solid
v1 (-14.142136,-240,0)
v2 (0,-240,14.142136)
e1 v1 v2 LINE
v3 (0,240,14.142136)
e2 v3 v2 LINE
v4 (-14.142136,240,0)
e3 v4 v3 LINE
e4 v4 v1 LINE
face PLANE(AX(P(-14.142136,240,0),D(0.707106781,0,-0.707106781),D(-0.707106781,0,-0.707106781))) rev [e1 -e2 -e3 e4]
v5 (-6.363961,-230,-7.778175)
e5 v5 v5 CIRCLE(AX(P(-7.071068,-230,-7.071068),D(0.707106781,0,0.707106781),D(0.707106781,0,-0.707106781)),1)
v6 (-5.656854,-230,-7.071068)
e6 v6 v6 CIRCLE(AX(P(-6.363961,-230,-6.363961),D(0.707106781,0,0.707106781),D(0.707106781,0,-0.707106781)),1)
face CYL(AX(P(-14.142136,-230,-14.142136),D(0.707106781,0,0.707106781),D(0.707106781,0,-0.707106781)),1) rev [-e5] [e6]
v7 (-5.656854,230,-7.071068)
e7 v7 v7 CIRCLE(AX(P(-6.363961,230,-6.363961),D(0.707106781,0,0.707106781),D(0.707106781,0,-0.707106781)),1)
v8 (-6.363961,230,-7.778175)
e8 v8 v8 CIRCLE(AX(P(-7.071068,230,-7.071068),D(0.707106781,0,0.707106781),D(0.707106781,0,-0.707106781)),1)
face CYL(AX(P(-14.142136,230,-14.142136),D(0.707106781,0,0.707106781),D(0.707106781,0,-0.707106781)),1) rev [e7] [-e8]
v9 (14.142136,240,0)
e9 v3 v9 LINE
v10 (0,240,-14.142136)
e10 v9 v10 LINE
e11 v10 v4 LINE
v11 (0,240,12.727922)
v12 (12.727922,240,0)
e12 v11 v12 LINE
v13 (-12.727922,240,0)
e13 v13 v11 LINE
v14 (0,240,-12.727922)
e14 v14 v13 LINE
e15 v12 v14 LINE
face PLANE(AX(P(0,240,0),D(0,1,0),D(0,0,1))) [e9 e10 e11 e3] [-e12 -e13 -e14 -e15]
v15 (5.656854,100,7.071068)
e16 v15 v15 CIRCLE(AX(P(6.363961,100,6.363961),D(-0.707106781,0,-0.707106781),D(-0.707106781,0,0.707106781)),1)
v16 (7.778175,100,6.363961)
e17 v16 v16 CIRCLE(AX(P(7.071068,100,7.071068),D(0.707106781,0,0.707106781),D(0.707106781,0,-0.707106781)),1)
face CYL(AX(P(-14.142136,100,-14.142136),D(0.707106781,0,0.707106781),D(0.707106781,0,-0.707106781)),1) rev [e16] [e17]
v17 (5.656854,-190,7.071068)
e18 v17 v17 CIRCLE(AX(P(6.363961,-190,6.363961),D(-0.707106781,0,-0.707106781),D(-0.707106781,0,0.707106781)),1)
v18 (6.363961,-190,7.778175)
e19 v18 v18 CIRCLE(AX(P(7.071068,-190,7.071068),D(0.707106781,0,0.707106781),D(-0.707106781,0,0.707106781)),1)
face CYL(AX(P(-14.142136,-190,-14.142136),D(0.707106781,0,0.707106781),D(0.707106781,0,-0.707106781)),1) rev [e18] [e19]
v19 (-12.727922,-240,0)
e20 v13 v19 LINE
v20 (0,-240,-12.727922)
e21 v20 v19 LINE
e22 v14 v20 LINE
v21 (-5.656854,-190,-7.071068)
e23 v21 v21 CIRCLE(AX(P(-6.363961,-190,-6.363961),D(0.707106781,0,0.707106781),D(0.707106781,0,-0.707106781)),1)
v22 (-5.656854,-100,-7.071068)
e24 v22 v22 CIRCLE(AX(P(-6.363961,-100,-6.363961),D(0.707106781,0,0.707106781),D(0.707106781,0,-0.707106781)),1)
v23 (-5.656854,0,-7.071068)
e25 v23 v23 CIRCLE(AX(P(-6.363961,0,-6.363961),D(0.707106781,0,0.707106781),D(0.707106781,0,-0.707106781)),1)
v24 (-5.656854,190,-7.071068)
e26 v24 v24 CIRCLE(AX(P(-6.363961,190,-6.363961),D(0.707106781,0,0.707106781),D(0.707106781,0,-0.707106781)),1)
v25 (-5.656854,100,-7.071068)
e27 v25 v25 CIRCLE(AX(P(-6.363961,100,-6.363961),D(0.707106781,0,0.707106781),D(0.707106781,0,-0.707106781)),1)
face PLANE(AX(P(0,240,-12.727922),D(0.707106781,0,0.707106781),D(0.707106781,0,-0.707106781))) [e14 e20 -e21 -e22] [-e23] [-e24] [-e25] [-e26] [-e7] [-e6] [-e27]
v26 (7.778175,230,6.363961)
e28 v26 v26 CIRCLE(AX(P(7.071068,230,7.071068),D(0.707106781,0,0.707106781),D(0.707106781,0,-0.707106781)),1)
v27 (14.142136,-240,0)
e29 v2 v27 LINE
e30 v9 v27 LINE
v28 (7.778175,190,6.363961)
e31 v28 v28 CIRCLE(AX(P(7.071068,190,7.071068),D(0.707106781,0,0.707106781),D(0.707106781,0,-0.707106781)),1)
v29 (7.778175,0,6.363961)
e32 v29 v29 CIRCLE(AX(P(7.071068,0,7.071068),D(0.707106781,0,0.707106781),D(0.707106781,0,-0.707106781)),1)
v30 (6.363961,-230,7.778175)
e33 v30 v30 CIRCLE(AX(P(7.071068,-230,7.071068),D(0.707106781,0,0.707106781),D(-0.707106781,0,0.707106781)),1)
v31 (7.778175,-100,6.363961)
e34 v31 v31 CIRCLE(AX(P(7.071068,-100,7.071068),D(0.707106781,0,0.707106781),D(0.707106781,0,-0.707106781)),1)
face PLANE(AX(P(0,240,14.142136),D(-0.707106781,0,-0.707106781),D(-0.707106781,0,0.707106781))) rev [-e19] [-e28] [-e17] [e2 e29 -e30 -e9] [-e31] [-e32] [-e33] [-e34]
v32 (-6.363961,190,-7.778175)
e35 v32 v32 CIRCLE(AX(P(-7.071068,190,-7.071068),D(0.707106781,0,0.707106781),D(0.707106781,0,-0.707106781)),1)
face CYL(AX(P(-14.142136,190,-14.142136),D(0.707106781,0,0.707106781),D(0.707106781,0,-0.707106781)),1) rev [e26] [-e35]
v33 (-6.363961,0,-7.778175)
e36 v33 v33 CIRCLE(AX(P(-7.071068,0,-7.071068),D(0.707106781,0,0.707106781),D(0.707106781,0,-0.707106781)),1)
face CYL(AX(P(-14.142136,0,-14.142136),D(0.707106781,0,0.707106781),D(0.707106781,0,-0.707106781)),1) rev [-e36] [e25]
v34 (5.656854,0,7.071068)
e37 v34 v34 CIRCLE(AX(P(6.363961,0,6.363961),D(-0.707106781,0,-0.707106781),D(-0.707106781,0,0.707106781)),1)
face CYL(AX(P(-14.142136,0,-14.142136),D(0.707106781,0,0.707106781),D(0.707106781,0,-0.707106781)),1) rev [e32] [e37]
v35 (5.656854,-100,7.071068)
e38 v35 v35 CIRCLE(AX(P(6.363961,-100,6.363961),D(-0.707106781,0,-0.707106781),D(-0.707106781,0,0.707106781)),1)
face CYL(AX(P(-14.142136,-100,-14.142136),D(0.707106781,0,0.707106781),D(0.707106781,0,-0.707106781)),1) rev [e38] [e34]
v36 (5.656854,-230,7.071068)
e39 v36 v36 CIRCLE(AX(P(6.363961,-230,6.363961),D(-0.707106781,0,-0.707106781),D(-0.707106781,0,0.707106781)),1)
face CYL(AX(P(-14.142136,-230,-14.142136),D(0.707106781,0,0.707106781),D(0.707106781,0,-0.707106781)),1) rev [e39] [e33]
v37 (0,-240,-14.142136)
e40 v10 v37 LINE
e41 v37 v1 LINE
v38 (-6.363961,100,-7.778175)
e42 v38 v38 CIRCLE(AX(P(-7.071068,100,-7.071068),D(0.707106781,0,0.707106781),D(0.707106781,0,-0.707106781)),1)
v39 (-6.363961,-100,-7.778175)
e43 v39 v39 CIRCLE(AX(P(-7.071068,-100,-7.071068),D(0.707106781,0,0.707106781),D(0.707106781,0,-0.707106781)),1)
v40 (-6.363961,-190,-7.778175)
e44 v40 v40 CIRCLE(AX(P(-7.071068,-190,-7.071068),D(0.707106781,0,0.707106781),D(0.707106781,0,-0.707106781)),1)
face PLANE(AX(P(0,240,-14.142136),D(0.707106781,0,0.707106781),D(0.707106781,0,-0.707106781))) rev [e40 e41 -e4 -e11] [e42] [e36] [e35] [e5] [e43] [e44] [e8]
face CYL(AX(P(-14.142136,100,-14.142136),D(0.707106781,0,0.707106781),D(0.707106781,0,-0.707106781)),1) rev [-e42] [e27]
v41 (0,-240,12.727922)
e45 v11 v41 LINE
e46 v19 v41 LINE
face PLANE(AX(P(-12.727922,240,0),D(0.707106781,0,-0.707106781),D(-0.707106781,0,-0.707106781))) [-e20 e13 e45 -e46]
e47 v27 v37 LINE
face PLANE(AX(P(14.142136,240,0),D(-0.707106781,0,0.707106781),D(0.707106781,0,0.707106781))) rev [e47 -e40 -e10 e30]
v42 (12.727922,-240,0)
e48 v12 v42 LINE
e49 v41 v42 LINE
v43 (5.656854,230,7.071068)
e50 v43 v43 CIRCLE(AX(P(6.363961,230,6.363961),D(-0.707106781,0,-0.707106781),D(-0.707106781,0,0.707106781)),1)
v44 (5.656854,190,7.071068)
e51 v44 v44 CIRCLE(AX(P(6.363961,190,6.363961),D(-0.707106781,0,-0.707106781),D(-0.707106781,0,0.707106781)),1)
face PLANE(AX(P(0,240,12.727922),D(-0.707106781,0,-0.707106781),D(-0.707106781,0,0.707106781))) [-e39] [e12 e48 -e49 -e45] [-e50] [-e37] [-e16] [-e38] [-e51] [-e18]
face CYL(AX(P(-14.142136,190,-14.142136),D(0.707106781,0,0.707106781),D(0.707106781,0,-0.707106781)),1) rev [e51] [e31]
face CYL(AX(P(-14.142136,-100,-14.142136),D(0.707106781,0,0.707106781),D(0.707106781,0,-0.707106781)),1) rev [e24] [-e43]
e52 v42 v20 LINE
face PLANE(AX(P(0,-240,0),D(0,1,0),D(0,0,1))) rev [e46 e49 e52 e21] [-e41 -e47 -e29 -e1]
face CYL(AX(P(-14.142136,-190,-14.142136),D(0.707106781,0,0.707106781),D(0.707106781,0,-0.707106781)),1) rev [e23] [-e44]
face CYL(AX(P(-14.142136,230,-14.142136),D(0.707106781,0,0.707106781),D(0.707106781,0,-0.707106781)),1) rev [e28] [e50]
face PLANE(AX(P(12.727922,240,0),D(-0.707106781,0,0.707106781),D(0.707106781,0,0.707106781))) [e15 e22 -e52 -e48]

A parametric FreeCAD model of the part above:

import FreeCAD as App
import Part
import Sketcher

V = App.Vector
Q = App.Units.Quantity


def add_polygon(sketch, points):
    """Adds a closed chain of lines whose ends are joined by coincident constraints."""
    first, n = sketch.GeometryCount, len(points)
    for a, b in zip(points, points[1:] + points[:1]):
        sketch.addGeometry(Part.LineSegment(App.Vector(*a, 0), App.Vector(*b, 0)), False)
    for i in range(n):
        sketch.addConstraint(Sketcher.Constraint("Coincident", first + i, 2, first + (i + 1) % n, 1))

doc = App.newDocument("Part")
params = doc.addObject("Spreadsheet::Sheet", "Params")
for row, (alias, value) in enumerate([
    ("sketch1_length", "20 mm"),
    ("sketch1_length2", "18 mm"),
    ("pad1_length", "480 mm"),
    ("sketch2_diameter", "2 mm"),
    ("sketch3_diameter", "2 mm"),
], start=1):
    params.set(f"A{row}", alias)
    params.set(f"B{row}", "=" + value)
    params.setAlias(f"B{row}", alias)

body = doc.addObject("PartDesign::Body", "Body")

# Sketch on XZ plane
sketch1 = body.newObject("Sketcher::SketchObject", "Sketch")
sketch1.AttachmentSupport = (doc.getObject("XZ_Plane"), [""])
sketch1.MapMode = "FlatFace"
add_polygon(sketch1, [(14.142136, 0), (0, -14.142136), (-14.142136, 0), (0, 14.142136)])  # lines 0-3
add_polygon(sketch1, [(0, -12.727922), (12.727922, 0), (0, 12.727922), (-12.727922, 0)])  # lines 4-7
sketch1.addConstraint([
    Sketcher.Constraint("Symmetric", 0, 2, 2, 2, -1, 1),
    Sketcher.Constraint("Symmetric", 1, 2, 3, 2, -1, 1),
    Sketcher.Constraint("Symmetric", 4, 2, 6, 2, -1, 1),
    Sketcher.Constraint("Symmetric", 5, 2, 7, 2, -1, 1),
    Sketcher.Constraint("PointOnObject", 0, 2, -2),
    Sketcher.Constraint("PointOnObject", 1, 2, -1),
    Sketcher.Constraint("PointOnObject", 4, 2, -1),
    Sketcher.Constraint("PointOnObject", 5, 2, -2),
    Sketcher.Constraint("Perpendicular", 0, 1),
    Sketcher.Constraint("Perpendicular", 3, 4),
    Sketcher.Constraint("Distance", 0, Q("20 mm")),
    Sketcher.Constraint("Distance", 4, Q("18 mm")),
])
sketch1.setExpression("Constraints[18]", "Params.sketch1_length")
sketch1.setExpression("Constraints[19]", "Params.sketch1_length2")
pad1 = body.newObject("PartDesign::Pad", "Pad")
pad1.Profile = sketch1
pad1.setExpression("Length", "Params.pad1_length")
pad1.Midplane = True

# Sketch on an angled plane
sketch2 = body.newObject("Sketcher::SketchObject", "Sketch001")
sketch2.Placement = App.Placement(V(7.071068, 0, 7.071068), App.Rotation(V(0.707106781, 0, -0.707106781), V(0, 0.999999999, 0), V(0.707106781, 0, 0.707106781), "ZXY"))
sketch2.addGeometry([
    Part.Circle(V(0, 230, 0), V(0, 0, 1), 1),
    Part.Circle(V(0, 190, 0), V(0, 0, 1), 1),
    Part.Circle(V(0, -190, 0), V(0, 0, 1), 1),
    Part.Circle(V(0, -230, 0), V(0, 0, 1), 1),
], False)
sketch2.addConstraint([
    Sketcher.Constraint("Equal", 0, 1),
    Sketcher.Constraint("Equal", 1, 2),
    Sketcher.Constraint("Equal", 2, 3),
    Sketcher.Constraint("Symmetric", 1, 3, 2, 3, -1, 1),
    Sketcher.Constraint("Symmetric", 0, 3, 3, 3, -1, 1),
    Sketcher.Constraint("PointOnObject", 0, 3, -2),
    Sketcher.Constraint("PointOnObject", 1, 3, -2),
    Sketcher.Constraint("Diameter", 0, Q("2 mm")),
    Sketcher.Constraint("DistanceY", -1, 1, 0, 3, Q("230 mm")),
    Sketcher.Constraint("DistanceY", -1, 1, 1, 3, Q("190 mm")),
])
sketch2.setExpression("Constraints[7]", "Params.sketch2_diameter")
pocket1 = body.newObject("PartDesign::Pocket", "Pocket")
pocket1.Profile = sketch2
pocket1.Type = "ThroughAll"

# Sketch on an angled plane
sketch3 = body.newObject("Sketcher::SketchObject", "Sketch002")
sketch3.Placement = App.Placement(V(7.071068, 0, 7.071068), App.Rotation(V(0.707106781, 0, -0.707106781), V(0, 0.999999999, 0), V(0.707106781, 0, 0.707106781), "ZXY"))
sketch3.addGeometry([
    Part.Circle(V(0, 100, 0), V(0, 0, 1), 1),
    Part.Circle(V(0, 0, 0), V(0, 0, 1), 1),
    Part.Circle(V(0, -100, 0), V(0, 0, 1), 1),
], False)
sketch3.addConstraint([
    Sketcher.Constraint("Coincident", 1, 3, -1, 1),
    Sketcher.Constraint("Equal", 0, 1),
    Sketcher.Constraint("Equal", 1, 2),
    Sketcher.Constraint("Symmetric", 0, 3, 2, 3, -1, 1),
    Sketcher.Constraint("PointOnObject", 0, 3, -2),
    Sketcher.Constraint("Diameter", 0, Q("2 mm")),
    Sketcher.Constraint("DistanceY", -1, 1, 0, 3, Q("100 mm")),
])
sketch3.setExpression("Constraints[5]", "Params.sketch3_diameter")
pocket2 = body.newObject("PartDesign::Pocket", "Pocket001")
pocket2.Profile = sketch3
pocket2.Type = "ThroughAll"

doc.recompute()
